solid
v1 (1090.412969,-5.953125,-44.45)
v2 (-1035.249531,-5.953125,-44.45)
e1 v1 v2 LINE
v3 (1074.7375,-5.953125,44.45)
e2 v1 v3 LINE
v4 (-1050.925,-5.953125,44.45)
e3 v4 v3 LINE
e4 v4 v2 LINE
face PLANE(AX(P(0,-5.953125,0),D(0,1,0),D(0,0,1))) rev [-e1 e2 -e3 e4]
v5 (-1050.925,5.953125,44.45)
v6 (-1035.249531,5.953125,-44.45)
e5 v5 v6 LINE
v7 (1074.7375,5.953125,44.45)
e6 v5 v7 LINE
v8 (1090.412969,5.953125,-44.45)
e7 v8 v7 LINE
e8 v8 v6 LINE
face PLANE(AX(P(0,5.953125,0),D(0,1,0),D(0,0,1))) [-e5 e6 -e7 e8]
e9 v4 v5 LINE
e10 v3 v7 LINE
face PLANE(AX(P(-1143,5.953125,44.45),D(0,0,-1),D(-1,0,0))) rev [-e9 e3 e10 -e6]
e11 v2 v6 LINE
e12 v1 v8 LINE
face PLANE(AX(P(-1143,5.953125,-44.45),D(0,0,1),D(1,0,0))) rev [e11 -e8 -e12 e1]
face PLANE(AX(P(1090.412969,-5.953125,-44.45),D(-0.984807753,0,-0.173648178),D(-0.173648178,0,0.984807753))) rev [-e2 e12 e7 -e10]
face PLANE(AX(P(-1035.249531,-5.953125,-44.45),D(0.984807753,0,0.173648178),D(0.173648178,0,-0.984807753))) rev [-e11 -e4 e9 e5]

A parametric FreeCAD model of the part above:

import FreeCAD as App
import Part
import Sketcher

V = App.Vector
Q = App.Units.Quantity

doc = App.newDocument("Part")
body = doc.addObject("PartDesign::Body", "Body")

# Sketch on XZ plane
sketch1 = doc.addObject("Sketcher::SketchObject", "Sketch")
body.addObject(sketch1)
sketch1.AttachmentSupport = (doc.XZ_Plane, [""])
sketch1.MapMode = "FlatFace"
sketch1.addGeometry(Part.LineSegment(V(-1143, -44.45, 0), V(-1143, 44.45, 0)), False)
sketch1.addGeometry(Part.LineSegment(V(-1143, 44.45, 0), V(1143, 44.45, 0)), False)
sketch1.addGeometry(Part.LineSegment(V(1143, 44.45, 0), V(1143, -44.45, 0)), False)
sketch1.addGeometry(Part.LineSegment(V(1143, -44.45, 0), V(-1143, -44.45, 0)), False)
sketch1.addConstraint(Sketcher.Constraint("Coincident", 0, 2, 1, 1))
sketch1.addConstraint(Sketcher.Constraint("Coincident", 1, 2, 2, 1))
sketch1.addConstraint(Sketcher.Constraint("Coincident", 2, 2, 3, 1))
sketch1.addConstraint(Sketcher.Constraint("Coincident", 3, 2, 0, 1))
sketch1.addConstraint(Sketcher.Constraint("Vertical", 0))
sketch1.addConstraint(Sketcher.Constraint("Horizontal", 1))
sketch1.addConstraint(Sketcher.Constraint("Vertical", 2))
sketch1.addConstraint(Sketcher.Constraint("Horizontal", 3))
sketch1.addConstraint(Sketcher.Constraint("Symmetric", 0, 2, 2, 2, -1, 1))
sketch1.addConstraint(Sketcher.Constraint("DistanceX", 1, 1, 1, 2, Q("90 in")))
sketch1.addConstraint(Sketcher.Constraint("DistanceY", 0, 1, 0, 2, Q("3.5 in")))
pad1 = doc.addObject("PartDesign::Pad", "Pad")
body.addObject(pad1)
pad1.Profile = sketch1
pad1.Length = Q("0.46875 in")
pad1.Midplane = True

# Sketch on XZ plane
sketch2 = doc.addObject("Sketcher::SketchObject", "Sketch001")
body.addObject(sketch2)
sketch2.AttachmentSupport = (doc.XZ_Plane, [""])
sketch2.MapMode = "FlatFace"
sketch2.AttachmentOffset = App.Placement(V(0, 0, -0.234375 * 25.4), App.Rotation())
sketch2.addGeometry(Part.LineSegment(V(-1050.925, 44.45, 0), V(-1035.249531, -44.45, 0)), False)
sketch2.addGeometry(Part.LineSegment(V(-1035.249531, -44.45, 0), V(-1143, -44.45, 0)), False)
sketch2.addGeometry(Part.LineSegment(V(-1143, -44.45, 0), V(-1143, 44.45, 0)), False)
sketch2.addGeometry(Part.LineSegment(V(-1143, 44.45, 0), V(-1050.925, 44.45, 0)), False)
sketch2.addGeometry(Part.LineSegment(V(1090.412969, -44.45, 0), V(1074.7375, 44.45, 0)), False)
sketch2.addGeometry(Part.LineSegment(V(1074.7375, 44.45, 0), V(1143, 44.45, 0)), False)
sketch2.addGeometry(Part.LineSegment(V(1143, 44.45, 0), V(1143, -44.45, 0)), False)
sketch2.addGeometry(Part.LineSegment(V(1143, -44.45, 0), V(1090.412969, -44.45, 0)), False)
sketch2.addConstraint(Sketcher.Constraint("Coincident", 0, 2, 1, 1))
sketch2.addConstraint(Sketcher.Constraint("Coincident", 1, 2, 2, 1))
sketch2.addConstraint(Sketcher.Constraint("Coincident", 2, 2, 3, 1))
sketch2.addConstraint(Sketcher.Constraint("Coincident", 3, 2, 0, 1))
sketch2.addConstraint(Sketcher.Constraint("Coincident", 4, 2, 5, 1))
sketch2.addConstraint(Sketcher.Constraint("Coincident", 5, 2, 6, 1))
sketch2.addConstraint(Sketcher.Constraint("Coincident", 6, 2, 7, 1))
sketch2.addConstraint(Sketcher.Constraint("Coincident", 7, 2, 4, 1))
sketch2.addConstraint(Sketcher.Constraint("Horizontal", 1))
sketch2.addConstraint(Sketcher.Constraint("Vertical", 2))
sketch2.addConstraint(Sketcher.Constraint("Horizontal", 3))
sketch2.addConstraint(Sketcher.Constraint("Horizontal", 5))
sketch2.addConstraint(Sketcher.Constraint("Vertical", 6))
sketch2.addConstraint(Sketcher.Constraint("Horizontal", 7))
sketch2.addConstraint(Sketcher.Constraint("Symmetric", 1, 2, 5, 2, -1, 1))
sketch2.addConstraint(Sketcher.Constraint("Parallel", 0, 4))
sketch2.addConstraint(Sketcher.Constraint("Horizontal", 3, 2, 4, 2))
sketch2.addConstraint(Sketcher.Constraint("Horizontal", 1, 2, 6, 2))
sketch2.addConstraint(Sketcher.Constraint("DistanceY", 2, 1, 2, 2, Q("3.5 in")))
sketch2.addConstraint(Sketcher.Constraint("DistanceX", 1, 2, -1, 1, Q("45 in")))
sketch2.addConstraint(Sketcher.Constraint("Angle", 0, Q("-80 deg")))
sketch2.addConstraint(Sketcher.Constraint("DistanceX", 3, 1, 3, 2, Q("3.625 in")))
sketch2.addConstraint(Sketcher.Constraint("DistanceX", 5, 1, 5, 2, Q("2.6875 in")))
pocket1 = doc.addObject("PartDesign::Pocket", "Pocket")
body.addObject(pocket1)
pocket1.Profile = sketch2
pocket1.Type = "ThroughAll"
pocket1.Reversed = True

doc.recompute()
